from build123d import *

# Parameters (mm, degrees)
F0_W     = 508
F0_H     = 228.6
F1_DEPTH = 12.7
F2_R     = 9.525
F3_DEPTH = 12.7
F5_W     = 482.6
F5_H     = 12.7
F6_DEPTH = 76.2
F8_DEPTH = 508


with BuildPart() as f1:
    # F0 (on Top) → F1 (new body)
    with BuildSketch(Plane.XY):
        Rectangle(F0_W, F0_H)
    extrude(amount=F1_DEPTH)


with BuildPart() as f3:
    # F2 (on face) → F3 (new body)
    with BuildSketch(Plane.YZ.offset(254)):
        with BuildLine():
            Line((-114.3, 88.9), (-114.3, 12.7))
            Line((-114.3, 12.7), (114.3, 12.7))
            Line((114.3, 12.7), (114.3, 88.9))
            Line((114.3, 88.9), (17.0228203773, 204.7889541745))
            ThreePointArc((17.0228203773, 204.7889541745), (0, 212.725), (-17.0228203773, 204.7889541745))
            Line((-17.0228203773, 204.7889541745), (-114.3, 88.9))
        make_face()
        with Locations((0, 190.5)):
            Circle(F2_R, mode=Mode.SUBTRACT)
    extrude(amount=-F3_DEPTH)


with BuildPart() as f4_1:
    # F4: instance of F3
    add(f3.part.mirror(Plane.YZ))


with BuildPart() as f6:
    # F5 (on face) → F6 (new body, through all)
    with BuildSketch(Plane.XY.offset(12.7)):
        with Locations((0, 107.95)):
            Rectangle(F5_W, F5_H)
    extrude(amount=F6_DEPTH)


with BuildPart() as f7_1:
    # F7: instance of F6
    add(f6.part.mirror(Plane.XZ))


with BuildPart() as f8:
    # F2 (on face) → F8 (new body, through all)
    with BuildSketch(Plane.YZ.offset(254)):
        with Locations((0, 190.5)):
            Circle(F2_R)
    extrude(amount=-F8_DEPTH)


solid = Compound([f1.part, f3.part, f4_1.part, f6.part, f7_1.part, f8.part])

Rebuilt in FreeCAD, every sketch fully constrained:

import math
import FreeCAD as App
import Part
import Sketcher
Q = App.Units.Quantity


def add_polygon(sketch, points):
    """Adds a closed chain of lines whose ends are joined by coincident constraints."""
    first, n = sketch.GeometryCount, len(points)
    for a, b in zip(points, points[1:] + points[:1]):
        sketch.addGeometry(Part.LineSegment(App.Vector(*a, 0), App.Vector(*b, 0)), False)
    for i in range(n):
        sketch.addConstraint(Sketcher.Constraint("Coincident", first + i, 2, first + (i + 1) % n, 1))

doc = App.newDocument("Part")
body = doc.addObject("PartDesign::Body", "Body")

sketch1 = body.newObject("Sketcher::SketchObject", "Sketch")
sketch1.AttachmentSupport = (doc.getObject("XY_Plane"), [""])
sketch1.MapMode = "FlatFace"
add_polygon(sketch1, [(-254, 114), (-254, -114), (254, -114), (254, 114)])
sketch1.addConstraint([
    Sketcher.Constraint("Vertical", 0),
    Sketcher.Constraint("Horizontal", 1),
    Sketcher.Constraint("Vertical", 2),
    Sketcher.Constraint("Horizontal", 3),
    Sketcher.Constraint("Symmetric", 0, 2, 2, 2, -1, 1),
    Sketcher.Constraint("DistanceX", 1, 1, 1, 2, Q("20 in")),
    Sketcher.Constraint("DistanceY", 0, 2, 0, 1, Q("9 in")),
])
pad1 = body.newObject("PartDesign::Pad", "Pad")
pad1.Profile = sketch1
pad1.Length = Q("0.5 in")
body2 = doc.addObject("PartDesign::Body", "Body001")

sketch2 = body2.newObject("Sketcher::SketchObject", "Sketch001")
sketch2.AttachmentSupport = (doc.getObject("YZ_Plane001"), [""])
sketch2.MapMode = "FlatFace"
sketch2.AttachmentOffset = App.Placement(App.Vector(0, 0, 10 * 25.4), App.Rotation())
sketch2.addGeometry([
    Part.LineSegment(App.Vector(-114, 89, 0), App.Vector(-114, 13, 0)),
    Part.LineSegment(App.Vector(-114, 13, 0), App.Vector(114, 13, 0)),
    Part.LineSegment(App.Vector(114, 13, 0), App.Vector(114, 89, 0)),
    Part.LineSegment(App.Vector(114, 89, 0), App.Vector(17, 205, 0)),
    Part.ArcOfCircle(Part.Circle(App.Vector(0, 190, 0), App.Vector(0, 0, 1), 22), math.radians(40), math.radians(140)),
    Part.LineSegment(App.Vector(-17, 205, 0), App.Vector(-114, 89, 0)),
    Part.Circle(App.Vector(0, 190, 0), App.Vector(0, 0, 1), 10),
], False)
sketch2.addConstraint([
    Sketcher.Constraint("Coincident", 0, 2, 1, 1),
    Sketcher.Constraint("Coincident", 1, 2, 2, 1),
    Sketcher.Constraint("Coincident", 2, 2, 3, 1),
    Sketcher.Constraint("Tangent", 3, 2, 4, 1),
    Sketcher.Constraint("Tangent", 4, 2, 5, 1),
    Sketcher.Constraint("Coincident", 5, 2, 0, 1),
    Sketcher.Constraint("Vertical", 0),
    Sketcher.Constraint("Horizontal", 1),
    Sketcher.Constraint("Vertical", 2),
    Sketcher.Constraint("Coincident", 6, 3, 4, 3),
    Sketcher.Constraint("Symmetric", 3, 2, 4, 2, -2),
    Sketcher.Constraint("Horizontal", 2, 2, 5, 2),
    Sketcher.Constraint("Diameter", 6, Q("0.75 in")),
    Sketcher.Constraint("DistanceX", 1, 1, 1, 2, Q("9 in")),
    Sketcher.Constraint("DistanceY", 0, 2, 0, 1, Q("3 in")),
    Sketcher.Constraint("Radius", 4, Q("0.875 in")),
    Sketcher.Constraint("DistanceY", 0, 2, 4, 3, Q("7 in")),
    Sketcher.Constraint("DistanceY", -1, 1, 4, 3, Q("7.5 in")),
])
pad2 = body2.newObject("PartDesign::Pad", "Pad001")
pad2.Profile = sketch2
pad2.Length = Q("0.5 in")
pad2.Reversed = True
body3 = doc.addObject("PartDesign::Body", "Body002")
doc.recompute()

mirroring = doc.addObject("Part::Mirroring", "Mirroring")
mirroring.Source = body2
mirroring.Base = App.Vector(0, 0, 0)
mirroring.Normal = App.Vector(1, 0, 0)
body3.BaseFeature = mirroring
doc.recompute()
body4 = doc.addObject("PartDesign::Body", "Body003")

sketch3 = body4.newObject("Sketcher::SketchObject", "Sketch002")
sketch3.AttachmentSupport = (doc.getObject("XY_Plane003"), [""])
sketch3.MapMode = "FlatFace"
sketch3.AttachmentOffset = App.Placement(App.Vector(0, 0, 0.5 * 25.4), App.Rotation())
add_polygon(sketch3, [(-241, 114), (-241, 102), (241, 102), (241, 114)])
sketch3.addConstraint([
    Sketcher.Constraint("Vertical", 0),
    Sketcher.Constraint("Horizontal", 1),
    Sketcher.Constraint("Vertical", 2),
    Sketcher.Constraint("Horizontal", 3),
    Sketcher.Constraint("DistanceX", 1, 1, 1, 2, Q("19 in")),
    Sketcher.Constraint("DistanceY", 0, 2, 0, 1, Q("0.5 in")),
    Sketcher.Constraint("DistanceY", -1, 1, 0, 2, Q("4 in")),
    Sketcher.Constraint("DistanceX", 0, 2, -1, 1, Q("9.5 in")),
])
pad3 = body4.newObject("PartDesign::Pad", "Pad002")
pad3.Profile = sketch3
pad3.Length = Q("3 in")
body5 = doc.addObject("PartDesign::Body", "Body004")
doc.recompute()

mirroring2 = doc.addObject("Part::Mirroring", "Mirroring001")
mirroring2.Source = body4
mirroring2.Base = App.Vector(0, 0, 0)
mirroring2.Normal = App.Vector(0, -1, 0)
body5.BaseFeature = mirroring2
doc.recompute()
body6 = doc.addObject("PartDesign::Body", "Body005")

sketch4 = body6.newObject("Sketcher::SketchObject", "Sketch003")
sketch4.AttachmentSupport = (doc.getObject("YZ_Plane005"), [""])
sketch4.MapMode = "FlatFace"
sketch4.AttachmentOffset = App.Placement(App.Vector(0, 0, 10 * 25.4), App.Rotation())
sketch4.addGeometry(Part.Circle(App.Vector(0, 190, 0), App.Vector(0, 0, 1), 10), False)
sketch4.addConstraint([
    Sketcher.Constraint("PointOnObject", 0, 3, -2),
    Sketcher.Constraint("Diameter", 0, Q("0.75 in")),
    Sketcher.Constraint("DistanceY", -1, 1, 0, 3, Q("7.5 in")),
])
pad4 = body6.newObject("PartDesign::Pad", "Pad003")
pad4.Profile = sketch4
pad4.Length = Q("20 in")
pad4.Reversed = True
mirroring.Visibility = False
mirroring2.Visibility = False

doc.recompute()
